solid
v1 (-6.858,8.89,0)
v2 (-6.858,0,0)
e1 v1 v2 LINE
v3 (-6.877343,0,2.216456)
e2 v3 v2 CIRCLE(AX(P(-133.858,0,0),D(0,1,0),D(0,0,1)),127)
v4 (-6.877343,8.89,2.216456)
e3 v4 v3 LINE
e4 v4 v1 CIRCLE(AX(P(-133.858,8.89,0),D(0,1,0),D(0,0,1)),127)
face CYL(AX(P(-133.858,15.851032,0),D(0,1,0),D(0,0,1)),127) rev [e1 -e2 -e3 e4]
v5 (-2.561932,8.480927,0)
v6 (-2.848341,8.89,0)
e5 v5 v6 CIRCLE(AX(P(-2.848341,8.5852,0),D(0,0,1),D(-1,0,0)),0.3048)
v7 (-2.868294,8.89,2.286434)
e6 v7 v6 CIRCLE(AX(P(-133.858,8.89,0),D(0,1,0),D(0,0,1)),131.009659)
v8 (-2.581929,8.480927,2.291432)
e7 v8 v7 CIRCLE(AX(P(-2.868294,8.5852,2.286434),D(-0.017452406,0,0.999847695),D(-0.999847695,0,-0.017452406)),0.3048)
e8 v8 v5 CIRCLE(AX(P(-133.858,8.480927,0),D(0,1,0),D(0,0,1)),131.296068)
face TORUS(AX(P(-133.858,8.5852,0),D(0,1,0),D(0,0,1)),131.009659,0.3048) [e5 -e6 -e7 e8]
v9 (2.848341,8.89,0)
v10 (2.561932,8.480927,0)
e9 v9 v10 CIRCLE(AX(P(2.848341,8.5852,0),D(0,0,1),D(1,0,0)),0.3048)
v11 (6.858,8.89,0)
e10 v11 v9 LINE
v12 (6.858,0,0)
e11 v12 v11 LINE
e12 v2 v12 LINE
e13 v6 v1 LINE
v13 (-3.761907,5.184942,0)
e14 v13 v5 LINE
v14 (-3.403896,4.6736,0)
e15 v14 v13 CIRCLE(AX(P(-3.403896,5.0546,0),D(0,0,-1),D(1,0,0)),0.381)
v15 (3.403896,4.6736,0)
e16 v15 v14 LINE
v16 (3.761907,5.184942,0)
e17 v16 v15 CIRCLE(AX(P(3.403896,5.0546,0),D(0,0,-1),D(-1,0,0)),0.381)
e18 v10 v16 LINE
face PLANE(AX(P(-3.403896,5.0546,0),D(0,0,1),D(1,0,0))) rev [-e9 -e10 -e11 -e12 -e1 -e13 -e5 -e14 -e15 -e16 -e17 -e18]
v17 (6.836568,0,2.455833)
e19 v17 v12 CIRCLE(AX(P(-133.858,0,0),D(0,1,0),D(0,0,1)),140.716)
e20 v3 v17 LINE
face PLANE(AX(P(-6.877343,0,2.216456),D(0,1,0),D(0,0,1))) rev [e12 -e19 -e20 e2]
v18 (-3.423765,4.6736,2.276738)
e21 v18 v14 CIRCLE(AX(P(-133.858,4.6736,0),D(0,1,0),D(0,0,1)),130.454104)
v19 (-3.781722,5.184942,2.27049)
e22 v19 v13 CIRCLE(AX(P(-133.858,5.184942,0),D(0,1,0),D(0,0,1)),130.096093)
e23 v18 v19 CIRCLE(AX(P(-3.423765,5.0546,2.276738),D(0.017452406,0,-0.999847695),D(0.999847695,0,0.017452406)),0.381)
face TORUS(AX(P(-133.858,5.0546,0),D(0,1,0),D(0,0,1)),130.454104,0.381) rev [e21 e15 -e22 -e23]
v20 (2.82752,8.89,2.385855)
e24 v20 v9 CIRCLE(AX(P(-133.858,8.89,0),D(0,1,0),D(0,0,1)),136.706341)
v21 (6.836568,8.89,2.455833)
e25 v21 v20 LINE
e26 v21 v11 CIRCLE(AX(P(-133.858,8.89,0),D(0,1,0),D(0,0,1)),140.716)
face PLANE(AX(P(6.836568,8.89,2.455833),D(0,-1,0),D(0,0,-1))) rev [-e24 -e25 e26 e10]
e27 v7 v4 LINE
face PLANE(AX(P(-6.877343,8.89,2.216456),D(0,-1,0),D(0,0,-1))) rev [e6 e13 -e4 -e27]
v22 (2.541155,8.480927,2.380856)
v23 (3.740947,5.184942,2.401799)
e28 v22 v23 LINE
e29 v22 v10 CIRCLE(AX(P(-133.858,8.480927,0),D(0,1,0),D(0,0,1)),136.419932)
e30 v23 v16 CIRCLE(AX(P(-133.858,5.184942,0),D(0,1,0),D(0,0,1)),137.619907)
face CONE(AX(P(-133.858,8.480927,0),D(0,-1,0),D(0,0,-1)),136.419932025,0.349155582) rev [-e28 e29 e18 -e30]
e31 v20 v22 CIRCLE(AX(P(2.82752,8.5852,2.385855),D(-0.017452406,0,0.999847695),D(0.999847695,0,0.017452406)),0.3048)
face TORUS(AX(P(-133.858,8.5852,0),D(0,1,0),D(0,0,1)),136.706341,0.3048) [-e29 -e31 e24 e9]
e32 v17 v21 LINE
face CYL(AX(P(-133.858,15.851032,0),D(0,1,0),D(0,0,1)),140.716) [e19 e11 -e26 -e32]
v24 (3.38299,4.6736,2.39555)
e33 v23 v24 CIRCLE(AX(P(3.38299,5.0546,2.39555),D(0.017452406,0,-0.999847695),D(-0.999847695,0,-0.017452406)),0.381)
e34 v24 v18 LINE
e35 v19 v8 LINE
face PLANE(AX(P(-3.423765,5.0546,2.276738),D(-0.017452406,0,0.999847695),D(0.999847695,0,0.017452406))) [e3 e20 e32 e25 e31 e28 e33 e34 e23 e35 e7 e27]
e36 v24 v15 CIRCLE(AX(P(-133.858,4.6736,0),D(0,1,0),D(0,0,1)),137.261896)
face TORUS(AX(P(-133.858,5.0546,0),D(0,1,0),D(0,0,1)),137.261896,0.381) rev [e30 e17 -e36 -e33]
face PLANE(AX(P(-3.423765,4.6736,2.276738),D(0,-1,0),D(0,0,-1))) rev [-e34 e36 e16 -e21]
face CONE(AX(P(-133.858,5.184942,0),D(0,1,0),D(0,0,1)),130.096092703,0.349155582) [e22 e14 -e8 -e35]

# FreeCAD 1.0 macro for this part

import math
import FreeCAD as App
import Part
import Sketcher
Q = App.Units.Quantity

doc = App.newDocument("Part")
body = doc.addObject("PartDesign::Body", "Body")

# Sketch on XY plane
sketch1 = body.newObject("Sketcher::SketchObject", "Sketch")
sketch1.AttachmentSupport = (doc.getObject("XY_Plane"), [""])
sketch1.MapMode = "FlatFace"
sketch1.addGeometry([
    Part.LineSegment(App.Vector(-6.858, 0, 0), App.Vector(6.858, 0, 0)),  # 0
    Part.LineSegment(App.Vector(6.858, 0, 0), App.Vector(6.858, 8.89, 0)),  # 1
    Part.LineSegment(App.Vector(6.858, 8.89, 0), App.Vector(2.848341, 8.89, 0)),  # 2
    Part.ArcOfCircle(Part.Circle(App.Vector(2.848341, 8.5852, 0), App.Vector(0, 0, 1), 0.3048), math.radians(90), math.radians(200.005141)),  # 3
    Part.LineSegment(App.Vector(2.561932, 8.480927, 0), App.Vector(3.761907, 5.184942, 0)),  # 4
    Part.ArcOfCircle(Part.Circle(App.Vector(3.403896, 5.0546, 0), App.Vector(0, 0, 1), 0.381), math.radians(-90), math.radians(20.005141)),  # 5
    Part.LineSegment(App.Vector(3.403896, 4.6736, 0), App.Vector(-3.403896, 4.6736, 0)),  # 6
    Part.ArcOfCircle(Part.Circle(App.Vector(-3.403896, 5.0546, 0), App.Vector(0, 0, 1), 0.381), math.radians(159.994859), math.radians(270)),  # 7
    Part.LineSegment(App.Vector(-3.761907, 5.184942, 0), App.Vector(-2.561932, 8.480927, 0)),  # 8
    Part.ArcOfCircle(Part.Circle(App.Vector(-2.848341, 8.5852, 0), App.Vector(0, 0, 1), 0.3048), math.radians(-20.005141), math.radians(90)),  # 9
    Part.LineSegment(App.Vector(-2.848341, 8.89, 0), App.Vector(-6.858, 8.89, 0)),  # 10
    Part.LineSegment(App.Vector(-6.858, 8.89, 0), App.Vector(-6.858, 0, 0)),  # 11
], False)
sketch1.addGeometry(Part.LineSegment(App.Vector(-133.858, 8.89, 0), App.Vector(-133.858, 0, 0)), True)  # axis
sketch1.addConstraint([
    Sketcher.Constraint("Coincident", 0, 2, 1, 1),
    Sketcher.Constraint("Coincident", 1, 2, 2, 1),
    Sketcher.Constraint("Tangent", 2, 2, 3, 1),
    Sketcher.Constraint("Tangent", 3, 2, 4, 1),
    Sketcher.Constraint("Tangent", 4, 2, 5, 2),
    Sketcher.Constraint("Tangent", 5, 1, 6, 1),
    Sketcher.Constraint("Tangent", 6, 2, 7, 2),
    Sketcher.Constraint("Tangent", 7, 1, 8, 1),
    Sketcher.Constraint("Tangent", 8, 2, 9, 1),
    Sketcher.Constraint("Tangent", 9, 2, 10, 1),
    Sketcher.Constraint("Coincident", 10, 2, 11, 1),
    Sketcher.Constraint("Coincident", 11, 2, 0, 1),
    Sketcher.Constraint("Horizontal", 0),
    Sketcher.Constraint("Vertical", 1),
    Sketcher.Constraint("Horizontal", 2),
    Sketcher.Constraint("Horizontal", 6),
    Sketcher.Constraint("Horizontal", 10),
    Sketcher.Constraint("Vertical", 11),
    Sketcher.Constraint("Vertical", 12),
    Sketcher.Constraint("Equal", 5, 7),
    Sketcher.Constraint("Equal", 3, 9),
    Sketcher.Constraint("Symmetric", 0, 2, 11, 2, -1, 1),
    Sketcher.Constraint("Symmetric", 3, 3, 9, 3, -2),
    Sketcher.Constraint("PointOnObject", 12, 2, -1),
    Sketcher.Constraint("Horizontal", 4, 2, 7, 1),
    Sketcher.Constraint("Horizontal", 10, 2, 12, 1),
    Sketcher.Constraint("Radius", 3, Q("0.012 in")),
    Sketcher.Constraint("Radius", 5, Q("0.015 in")),
    Sketcher.Constraint("DistanceX", 12, 1, 10, 2, Q("5 in")),
    Sketcher.Constraint("DistanceX", 0, 1, 0, 2, Q("0.54 in")),
    Sketcher.Constraint("DistanceY", 1, 1, 1, 2, Q("0.35 in")),
    Sketcher.Constraint("DistanceY", -1, 1, 5, 3, Q("0.199 in")),
    Sketcher.Constraint("DistanceX", 2, 2, 2, 1, 4.009659),
    Sketcher.Constraint("Distance", 4, 3.507628),
])
revolution = body.newObject("PartDesign::Revolution", "Revolution")
revolution.Profile = sketch1
revolution.ReferenceAxis = (sketch1, ["Axis0"])
revolution.Angle = 1

doc.recompute()
